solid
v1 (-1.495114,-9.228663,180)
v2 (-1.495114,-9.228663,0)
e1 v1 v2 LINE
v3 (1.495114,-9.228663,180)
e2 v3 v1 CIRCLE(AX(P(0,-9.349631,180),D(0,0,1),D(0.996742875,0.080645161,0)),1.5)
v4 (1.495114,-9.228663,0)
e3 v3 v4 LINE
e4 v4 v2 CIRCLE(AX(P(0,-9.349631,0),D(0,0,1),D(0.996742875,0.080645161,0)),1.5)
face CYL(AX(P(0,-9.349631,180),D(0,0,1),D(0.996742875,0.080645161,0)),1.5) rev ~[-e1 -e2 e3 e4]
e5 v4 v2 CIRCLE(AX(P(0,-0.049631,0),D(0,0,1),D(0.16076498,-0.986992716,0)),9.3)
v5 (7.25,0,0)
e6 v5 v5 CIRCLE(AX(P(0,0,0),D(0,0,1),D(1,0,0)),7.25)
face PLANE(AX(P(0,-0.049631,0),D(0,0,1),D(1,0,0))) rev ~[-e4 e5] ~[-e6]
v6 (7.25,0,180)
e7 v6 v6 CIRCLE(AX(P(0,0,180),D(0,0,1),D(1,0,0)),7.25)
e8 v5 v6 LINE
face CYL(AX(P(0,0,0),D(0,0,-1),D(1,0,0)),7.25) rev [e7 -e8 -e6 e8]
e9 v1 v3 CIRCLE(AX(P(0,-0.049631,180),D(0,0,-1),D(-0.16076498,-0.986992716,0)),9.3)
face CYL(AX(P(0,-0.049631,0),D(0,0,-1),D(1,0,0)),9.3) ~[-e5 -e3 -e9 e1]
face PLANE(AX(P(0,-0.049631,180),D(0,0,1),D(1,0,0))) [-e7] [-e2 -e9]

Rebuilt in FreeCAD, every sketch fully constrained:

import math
import FreeCAD as App
import Part
import Sketcher
from FreeCAD import Vector

doc = App.newDocument("Part")
body = doc.addObject("PartDesign::Body", "Body")

sketch1 = body.newObject("Sketcher::SketchObject", "Sketch")
sketch1.AttachmentSupport = (doc.getObject("XY_Plane"), [""])
sketch1.MapMode = "FlatFace"
sketch1.addGeometry([
    Part.Circle(Vector(0, -0.049631, 0), Vector(0, 0, 1), 9.3),
    Part.Circle(Vector(0, 0, 0), Vector(0, 0, 1), 7.25),
], False)
sketch1.addConstraint([
    Sketcher.Constraint("Coincident", 1, 3, -1, 1),
    Sketcher.Constraint("PointOnObject", 0, 3, -2),
    Sketcher.Constraint("Diameter", 0, 18.6),
    Sketcher.Constraint("Diameter", 1, 14.5),
    Sketcher.Constraint("DistanceY", 0, 3, -1, 1, 0.049631),
])
pad1 = body.newObject("PartDesign::Pad", "Pad")
pad1.Profile = sketch1
pad1.Length = 180

sketch2 = body.newObject("Sketcher::SketchObject", "Sketch001")
sketch2.AttachmentSupport = (doc.getObject("XY_Plane"), [""])
sketch2.MapMode = "FlatFace"
sketch2.AttachmentOffset = App.Placement(Vector(0, 0, 180), App.Rotation())
sketch2.addGeometry([
    Part.ArcOfCircle(Part.Circle(Vector(0, -0.049631, 0), Vector(0, 0, 1), 9.3), math.radians(-99.251301), math.radians(-80.748699)),
    Part.ArcOfCircle(Part.Circle(Vector(0, -9.349631, 0), Vector(0, 0, 1), 1.5), math.radians(4.625651), math.radians(175.374349)),
], False)
sketch2.addConstraint([
    Sketcher.Constraint("Coincident", 0, 1, 1, 2),
    Sketcher.Constraint("Coincident", 1, 1, 0, 2),
    Sketcher.Constraint("Symmetric", 0, 1, 1, 1, -2),
    Sketcher.Constraint("Radius", 0, 9.3),
    Sketcher.Constraint("Radius", 1, 1.5),
    Sketcher.Constraint("DistanceY", 1, 3, 0, 3, 9.3),
    Sketcher.Constraint("DistanceY", 0, 3, -1, 1, 0.049631),
])
pocket1 = body.newObject("PartDesign::Pocket", "Pocket")
pocket1.Profile = sketch2
pocket1.Type = "ThroughAll"

doc.recompute()
